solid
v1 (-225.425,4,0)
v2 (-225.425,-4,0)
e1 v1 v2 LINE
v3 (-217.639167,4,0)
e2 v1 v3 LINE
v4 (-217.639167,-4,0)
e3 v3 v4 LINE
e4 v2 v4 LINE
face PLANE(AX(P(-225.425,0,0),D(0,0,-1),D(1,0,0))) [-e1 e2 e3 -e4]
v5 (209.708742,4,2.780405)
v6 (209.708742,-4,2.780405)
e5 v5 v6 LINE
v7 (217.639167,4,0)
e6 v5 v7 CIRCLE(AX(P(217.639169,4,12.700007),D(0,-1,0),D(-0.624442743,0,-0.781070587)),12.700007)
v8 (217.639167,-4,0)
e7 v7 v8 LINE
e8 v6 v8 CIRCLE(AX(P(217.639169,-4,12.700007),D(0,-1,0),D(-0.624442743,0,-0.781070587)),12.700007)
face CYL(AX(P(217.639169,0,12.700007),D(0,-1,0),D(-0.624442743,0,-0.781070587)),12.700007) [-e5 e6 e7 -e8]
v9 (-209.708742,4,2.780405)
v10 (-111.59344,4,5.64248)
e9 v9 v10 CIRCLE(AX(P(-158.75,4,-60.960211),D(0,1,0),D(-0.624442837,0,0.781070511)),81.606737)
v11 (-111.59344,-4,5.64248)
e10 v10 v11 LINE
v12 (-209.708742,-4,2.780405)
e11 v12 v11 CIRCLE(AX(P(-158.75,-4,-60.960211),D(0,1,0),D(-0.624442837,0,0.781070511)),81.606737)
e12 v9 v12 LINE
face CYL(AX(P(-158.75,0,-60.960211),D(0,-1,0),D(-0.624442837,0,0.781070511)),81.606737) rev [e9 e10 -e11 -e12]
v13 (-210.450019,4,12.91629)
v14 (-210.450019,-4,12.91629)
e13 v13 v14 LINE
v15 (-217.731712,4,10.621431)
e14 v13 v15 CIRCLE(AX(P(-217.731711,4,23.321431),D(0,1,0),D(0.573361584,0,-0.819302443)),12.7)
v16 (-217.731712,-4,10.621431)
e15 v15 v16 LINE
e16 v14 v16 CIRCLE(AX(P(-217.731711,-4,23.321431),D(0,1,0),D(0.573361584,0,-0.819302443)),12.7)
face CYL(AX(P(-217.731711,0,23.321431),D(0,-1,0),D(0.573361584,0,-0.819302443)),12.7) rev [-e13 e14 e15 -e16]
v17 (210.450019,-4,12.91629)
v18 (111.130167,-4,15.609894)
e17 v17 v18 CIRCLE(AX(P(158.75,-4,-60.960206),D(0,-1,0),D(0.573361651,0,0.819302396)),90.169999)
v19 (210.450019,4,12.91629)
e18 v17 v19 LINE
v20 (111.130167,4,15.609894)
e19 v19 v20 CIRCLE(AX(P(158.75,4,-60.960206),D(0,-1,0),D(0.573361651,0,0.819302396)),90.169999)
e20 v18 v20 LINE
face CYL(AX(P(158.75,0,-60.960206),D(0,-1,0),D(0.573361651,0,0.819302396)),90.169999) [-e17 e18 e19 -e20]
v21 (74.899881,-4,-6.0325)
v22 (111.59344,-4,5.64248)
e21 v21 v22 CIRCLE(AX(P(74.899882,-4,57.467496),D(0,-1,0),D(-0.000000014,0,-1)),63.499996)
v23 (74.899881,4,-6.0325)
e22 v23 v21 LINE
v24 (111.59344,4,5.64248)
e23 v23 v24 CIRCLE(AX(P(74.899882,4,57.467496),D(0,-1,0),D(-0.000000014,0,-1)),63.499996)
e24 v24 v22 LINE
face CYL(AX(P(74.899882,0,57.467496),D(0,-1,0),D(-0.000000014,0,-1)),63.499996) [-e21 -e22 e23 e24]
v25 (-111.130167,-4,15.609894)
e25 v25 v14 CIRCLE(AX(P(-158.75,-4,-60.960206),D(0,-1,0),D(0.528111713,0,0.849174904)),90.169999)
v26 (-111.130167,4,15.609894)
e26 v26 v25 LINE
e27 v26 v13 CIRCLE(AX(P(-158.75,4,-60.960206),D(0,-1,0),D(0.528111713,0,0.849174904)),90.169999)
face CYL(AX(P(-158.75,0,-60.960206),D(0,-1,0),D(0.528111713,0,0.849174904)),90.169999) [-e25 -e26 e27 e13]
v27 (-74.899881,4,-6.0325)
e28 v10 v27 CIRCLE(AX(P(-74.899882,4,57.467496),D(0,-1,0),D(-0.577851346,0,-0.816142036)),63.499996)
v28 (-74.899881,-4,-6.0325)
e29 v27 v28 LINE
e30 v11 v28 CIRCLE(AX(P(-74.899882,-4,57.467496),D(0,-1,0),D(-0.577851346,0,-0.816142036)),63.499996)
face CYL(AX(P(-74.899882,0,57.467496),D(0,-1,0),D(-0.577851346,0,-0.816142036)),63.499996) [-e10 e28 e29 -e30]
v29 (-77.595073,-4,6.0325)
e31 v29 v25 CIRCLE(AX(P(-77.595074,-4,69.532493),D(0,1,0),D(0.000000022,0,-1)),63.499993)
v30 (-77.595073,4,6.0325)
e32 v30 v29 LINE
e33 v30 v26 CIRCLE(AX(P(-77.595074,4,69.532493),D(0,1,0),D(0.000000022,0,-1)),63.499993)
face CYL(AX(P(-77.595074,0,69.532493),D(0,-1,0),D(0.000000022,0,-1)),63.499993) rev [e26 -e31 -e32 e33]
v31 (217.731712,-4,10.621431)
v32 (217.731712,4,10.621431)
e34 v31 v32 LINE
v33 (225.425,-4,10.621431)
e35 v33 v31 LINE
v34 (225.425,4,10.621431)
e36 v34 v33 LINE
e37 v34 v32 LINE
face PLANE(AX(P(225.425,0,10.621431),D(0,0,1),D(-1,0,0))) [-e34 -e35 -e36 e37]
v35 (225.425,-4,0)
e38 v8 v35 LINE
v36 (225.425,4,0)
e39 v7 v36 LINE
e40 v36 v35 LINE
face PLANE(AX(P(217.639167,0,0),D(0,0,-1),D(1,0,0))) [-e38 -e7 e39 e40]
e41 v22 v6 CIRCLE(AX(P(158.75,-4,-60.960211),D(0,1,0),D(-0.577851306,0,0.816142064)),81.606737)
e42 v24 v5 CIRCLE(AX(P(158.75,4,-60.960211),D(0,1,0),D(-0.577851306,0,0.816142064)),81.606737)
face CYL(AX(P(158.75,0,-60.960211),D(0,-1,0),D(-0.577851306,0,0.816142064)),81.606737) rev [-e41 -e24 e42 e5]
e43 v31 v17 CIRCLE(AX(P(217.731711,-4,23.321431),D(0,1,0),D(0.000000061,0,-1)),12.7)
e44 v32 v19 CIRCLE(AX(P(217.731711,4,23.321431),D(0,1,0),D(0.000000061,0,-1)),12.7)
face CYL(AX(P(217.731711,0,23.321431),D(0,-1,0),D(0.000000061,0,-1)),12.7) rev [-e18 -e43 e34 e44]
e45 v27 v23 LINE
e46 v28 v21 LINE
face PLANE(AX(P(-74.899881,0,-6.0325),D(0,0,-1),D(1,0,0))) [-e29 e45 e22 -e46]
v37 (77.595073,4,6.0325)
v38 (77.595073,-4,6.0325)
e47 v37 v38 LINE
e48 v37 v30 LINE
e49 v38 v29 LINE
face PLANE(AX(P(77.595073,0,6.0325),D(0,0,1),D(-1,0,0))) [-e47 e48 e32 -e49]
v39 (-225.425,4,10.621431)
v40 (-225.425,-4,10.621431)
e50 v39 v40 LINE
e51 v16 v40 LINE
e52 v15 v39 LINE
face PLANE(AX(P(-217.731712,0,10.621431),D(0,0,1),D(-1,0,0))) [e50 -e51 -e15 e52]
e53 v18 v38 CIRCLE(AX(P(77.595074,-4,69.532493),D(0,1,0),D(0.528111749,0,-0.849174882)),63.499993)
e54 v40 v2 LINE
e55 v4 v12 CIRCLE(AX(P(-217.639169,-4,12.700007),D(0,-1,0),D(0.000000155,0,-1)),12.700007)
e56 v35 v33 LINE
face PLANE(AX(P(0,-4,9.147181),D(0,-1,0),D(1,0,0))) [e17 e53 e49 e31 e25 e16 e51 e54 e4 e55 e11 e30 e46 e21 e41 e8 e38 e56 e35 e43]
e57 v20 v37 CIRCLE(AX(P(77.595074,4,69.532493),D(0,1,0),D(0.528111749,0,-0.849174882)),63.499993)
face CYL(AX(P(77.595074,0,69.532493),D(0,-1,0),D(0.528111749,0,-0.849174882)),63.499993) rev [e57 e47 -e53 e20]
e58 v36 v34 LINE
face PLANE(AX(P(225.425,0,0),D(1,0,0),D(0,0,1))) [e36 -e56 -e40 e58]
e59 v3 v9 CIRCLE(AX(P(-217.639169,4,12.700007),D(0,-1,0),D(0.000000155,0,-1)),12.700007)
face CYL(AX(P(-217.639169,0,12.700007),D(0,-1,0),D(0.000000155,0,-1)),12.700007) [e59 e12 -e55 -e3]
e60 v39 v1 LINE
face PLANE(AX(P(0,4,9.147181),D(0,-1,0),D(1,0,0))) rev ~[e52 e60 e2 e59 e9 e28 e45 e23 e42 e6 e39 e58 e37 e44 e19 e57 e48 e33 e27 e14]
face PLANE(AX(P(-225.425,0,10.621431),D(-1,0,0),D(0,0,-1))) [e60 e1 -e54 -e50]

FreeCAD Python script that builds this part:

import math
import FreeCAD as App
import Part
import Sketcher
Q = App.Units.Quantity

doc = App.newDocument("Part")
body = doc.addObject("PartDesign::Body", "Body")

# Sketch on XZ plane
sketch1 = doc.addObject("Sketcher::SketchObject", "Sketch")
body.addObject(sketch1)
sketch1.AttachmentSupport = (doc.XZ_Plane, [""])
sketch1.MapMode = "FlatFace"
sketch1.addGeometry([
    Part.ArcOfCircle(Part.Circle(App.Vector(77.595074, 69.532493, 0), App.Vector(0, 0, 1), 63.499993), math.radians(-90.000001), math.radians(-58.122038)),  # 0
    Part.LineSegment(App.Vector(77.595073, 6.0325, 0), App.Vector(-77.595073, 6.0325, 0)),  # 1
    Part.ArcOfCircle(Part.Circle(App.Vector(-77.595074, 69.532493, 0), App.Vector(0, 0, 1), 63.499993), math.radians(-121.877962), math.radians(-89.999999)),  # 2
    Part.ArcOfCircle(Part.Circle(App.Vector(-158.75, -60.960206, 0), App.Vector(0, 0, 1), 90.169999), math.radians(58.122041), math.radians(124.984978)),  # 3
    Part.ArcOfCircle(Part.Circle(App.Vector(-217.731711, 23.321431, 0), App.Vector(0, 0, 1), 12.7), math.radians(-90.000004), math.radians(-55.015027)),  # 4
    Part.LineSegment(App.Vector(-217.731712, 10.621431, 0), App.Vector(-225.425, 10.621431, 0)),  # 5
    Part.LineSegment(App.Vector(-225.425, 10.621431, 0), App.Vector(-225.425, 0, 0)),  # 6
    Part.LineSegment(App.Vector(-225.425, 0, 0), App.Vector(-217.639167, 0, 0)),  # 7
    Part.ArcOfCircle(Part.Circle(App.Vector(-217.639169, 12.700007, 0), App.Vector(0, 0, 1), 12.700007), math.radians(-89.999991), math.radians(-51.358702)),  # 8
    Part.ArcOfCircle(Part.Circle(App.Vector(-158.75, -60.960211, 0), App.Vector(0, 0, 1), 81.606737), math.radians(54.700444), math.radians(128.641305)),  # 9
    Part.ArcOfCircle(Part.Circle(App.Vector(-74.899882, 57.467496, 0), App.Vector(0, 0, 1), 63.499996), math.radians(-125.299559), math.radians(-89.999999)),  # 10
    Part.LineSegment(App.Vector(-74.899881, -6.0325, 0), App.Vector(74.899881, -6.0325, 0)),  # 11
    Part.ArcOfCircle(Part.Circle(App.Vector(74.899882, 57.467496, 0), App.Vector(0, 0, 1), 63.499996), math.radians(-90.000001), math.radians(-54.700441)),  # 12
    Part.ArcOfCircle(Part.Circle(App.Vector(158.75, -60.960211, 0), App.Vector(0, 0, 1), 81.606737), math.radians(51.358695), math.radians(125.299556)),  # 13
    Part.ArcOfCircle(Part.Circle(App.Vector(217.639169, 12.700007, 0), App.Vector(0, 0, 1), 12.700007), math.radians(-128.641298), math.radians(-90.000009)),  # 14
    Part.LineSegment(App.Vector(217.639167, 0, 0), App.Vector(225.425, 0, 0)),  # 15
    Part.LineSegment(App.Vector(225.425, 0, 0), App.Vector(225.425, 10.621431, 0)),  # 16
    Part.LineSegment(App.Vector(225.425, 10.621431, 0), App.Vector(217.731712, 10.621431, 0)),  # 17
    Part.ArcOfCircle(Part.Circle(App.Vector(217.731711, 23.321431, 0), App.Vector(0, 0, 1), 12.7), math.radians(-124.984973), math.radians(-89.999996)),  # 18
    Part.ArcOfCircle(Part.Circle(App.Vector(158.75, -60.960206, 0), App.Vector(0, 0, 1), 90.169999), math.radians(55.015022), math.radians(121.877959)),  # 19
], False)
sketch1.addConstraint([
    Sketcher.Constraint("Tangent", 0, 1, 1, 1),
    Sketcher.Constraint("Tangent", 1, 2, 2, 2),
    Sketcher.Constraint("Tangent", 2, 1, 3, 1),
    Sketcher.Constraint("Tangent", 3, 2, 4, 2),
    Sketcher.Constraint("Tangent", 4, 1, 5, 1),
    Sketcher.Constraint("Coincident", 5, 2, 6, 1),
    Sketcher.Constraint("Coincident", 6, 2, 7, 1),
    Sketcher.Constraint("Tangent", 7, 2, 8, 1),
    Sketcher.Constraint("Tangent", 8, 2, 9, 2),
    Sketcher.Constraint("Tangent", 9, 1, 10, 1),
    Sketcher.Constraint("Tangent", 10, 2, 11, 1),
    Sketcher.Constraint("Tangent", 11, 2, 12, 1),
    Sketcher.Constraint("Tangent", 12, 2, 13, 2),
    Sketcher.Constraint("Tangent", 13, 1, 14, 1),
    Sketcher.Constraint("Tangent", 14, 2, 15, 1),
    Sketcher.Constraint("Coincident", 15, 2, 16, 1),
    Sketcher.Constraint("Coincident", 16, 2, 17, 1),
    Sketcher.Constraint("Tangent", 17, 2, 18, 2),
    Sketcher.Constraint("Tangent", 18, 1, 19, 1),
    Sketcher.Constraint("Tangent", 19, 2, 0, 2),
    Sketcher.Constraint("Horizontal", 1),
    Sketcher.Constraint("Horizontal", 5),
    Sketcher.Constraint("Vertical", 6),
    Sketcher.Constraint("Horizontal", 7),
    Sketcher.Constraint("Horizontal", 11),
    Sketcher.Constraint("Horizontal", 15),
    Sketcher.Constraint("Vertical", 16),
    Sketcher.Constraint("Horizontal", 17),
    Sketcher.Constraint("Coincident", 9, 3, 3, 3),
    Sketcher.Constraint("Coincident", 19, 3, 13, 3),
    Sketcher.Constraint("Equal", 0, 2),
    Sketcher.Constraint("Equal", 10, 12),
    Sketcher.Constraint("Equal", 9, 13),
    Sketcher.Constraint("Equal", 8, 14),
    Sketcher.Constraint("Equal", 4, 18),
    Sketcher.Constraint("Equal", 3, 19),
    Sketcher.Constraint("Symmetric", 7, 2, 14, 2, -1, 1),
    Sketcher.Constraint("Symmetric", 3, 3, 13, 3, -2),
    Sketcher.Constraint("Symmetric", 5, 2, 16, 2, -2),
    Sketcher.Constraint("Radius", 4, Q("0.5 in")),
    Sketcher.Constraint("Radius", 10, Q("2.4999998 in")),
    Sketcher.Constraint("Radius", 3, Q("3.55 in")),
    Sketcher.Constraint("DistanceX", 9, 3, 13, 3, Q("12.5 in")),
    Sketcher.Constraint("DistanceX", 5, 2, -1, 1, Q("8.875 in")),
    Sketcher.Constraint("DistanceY", 10, 3, 2, 3, Q("0.4749999 in")),
    Sketcher.Constraint("DistanceY", 0, 1, 12, 3, Q("2.0249998 in")),
    Sketcher.Constraint("DistanceY", -1, 1, 10, 3, Q("2.2624998 in")),
    Sketcher.Constraint("Radius", 8, Q("12.700007 mm")),
    Sketcher.Constraint("Radius", 9, Q("81.606737 mm")),
    Sketcher.Constraint("DistanceX", 5, 2, 5, 1, Q("7.693288 mm")),
    Sketcher.Constraint("DistanceX", 11, 1, 11, 2, Q("149.799762 mm")),
])
pad1 = doc.addObject("PartDesign::Pad", "Pad")
body.addObject(pad1)
pad1.Profile = sketch1
pad1.Length = 8
pad1.Midplane = True

doc.recompute()
